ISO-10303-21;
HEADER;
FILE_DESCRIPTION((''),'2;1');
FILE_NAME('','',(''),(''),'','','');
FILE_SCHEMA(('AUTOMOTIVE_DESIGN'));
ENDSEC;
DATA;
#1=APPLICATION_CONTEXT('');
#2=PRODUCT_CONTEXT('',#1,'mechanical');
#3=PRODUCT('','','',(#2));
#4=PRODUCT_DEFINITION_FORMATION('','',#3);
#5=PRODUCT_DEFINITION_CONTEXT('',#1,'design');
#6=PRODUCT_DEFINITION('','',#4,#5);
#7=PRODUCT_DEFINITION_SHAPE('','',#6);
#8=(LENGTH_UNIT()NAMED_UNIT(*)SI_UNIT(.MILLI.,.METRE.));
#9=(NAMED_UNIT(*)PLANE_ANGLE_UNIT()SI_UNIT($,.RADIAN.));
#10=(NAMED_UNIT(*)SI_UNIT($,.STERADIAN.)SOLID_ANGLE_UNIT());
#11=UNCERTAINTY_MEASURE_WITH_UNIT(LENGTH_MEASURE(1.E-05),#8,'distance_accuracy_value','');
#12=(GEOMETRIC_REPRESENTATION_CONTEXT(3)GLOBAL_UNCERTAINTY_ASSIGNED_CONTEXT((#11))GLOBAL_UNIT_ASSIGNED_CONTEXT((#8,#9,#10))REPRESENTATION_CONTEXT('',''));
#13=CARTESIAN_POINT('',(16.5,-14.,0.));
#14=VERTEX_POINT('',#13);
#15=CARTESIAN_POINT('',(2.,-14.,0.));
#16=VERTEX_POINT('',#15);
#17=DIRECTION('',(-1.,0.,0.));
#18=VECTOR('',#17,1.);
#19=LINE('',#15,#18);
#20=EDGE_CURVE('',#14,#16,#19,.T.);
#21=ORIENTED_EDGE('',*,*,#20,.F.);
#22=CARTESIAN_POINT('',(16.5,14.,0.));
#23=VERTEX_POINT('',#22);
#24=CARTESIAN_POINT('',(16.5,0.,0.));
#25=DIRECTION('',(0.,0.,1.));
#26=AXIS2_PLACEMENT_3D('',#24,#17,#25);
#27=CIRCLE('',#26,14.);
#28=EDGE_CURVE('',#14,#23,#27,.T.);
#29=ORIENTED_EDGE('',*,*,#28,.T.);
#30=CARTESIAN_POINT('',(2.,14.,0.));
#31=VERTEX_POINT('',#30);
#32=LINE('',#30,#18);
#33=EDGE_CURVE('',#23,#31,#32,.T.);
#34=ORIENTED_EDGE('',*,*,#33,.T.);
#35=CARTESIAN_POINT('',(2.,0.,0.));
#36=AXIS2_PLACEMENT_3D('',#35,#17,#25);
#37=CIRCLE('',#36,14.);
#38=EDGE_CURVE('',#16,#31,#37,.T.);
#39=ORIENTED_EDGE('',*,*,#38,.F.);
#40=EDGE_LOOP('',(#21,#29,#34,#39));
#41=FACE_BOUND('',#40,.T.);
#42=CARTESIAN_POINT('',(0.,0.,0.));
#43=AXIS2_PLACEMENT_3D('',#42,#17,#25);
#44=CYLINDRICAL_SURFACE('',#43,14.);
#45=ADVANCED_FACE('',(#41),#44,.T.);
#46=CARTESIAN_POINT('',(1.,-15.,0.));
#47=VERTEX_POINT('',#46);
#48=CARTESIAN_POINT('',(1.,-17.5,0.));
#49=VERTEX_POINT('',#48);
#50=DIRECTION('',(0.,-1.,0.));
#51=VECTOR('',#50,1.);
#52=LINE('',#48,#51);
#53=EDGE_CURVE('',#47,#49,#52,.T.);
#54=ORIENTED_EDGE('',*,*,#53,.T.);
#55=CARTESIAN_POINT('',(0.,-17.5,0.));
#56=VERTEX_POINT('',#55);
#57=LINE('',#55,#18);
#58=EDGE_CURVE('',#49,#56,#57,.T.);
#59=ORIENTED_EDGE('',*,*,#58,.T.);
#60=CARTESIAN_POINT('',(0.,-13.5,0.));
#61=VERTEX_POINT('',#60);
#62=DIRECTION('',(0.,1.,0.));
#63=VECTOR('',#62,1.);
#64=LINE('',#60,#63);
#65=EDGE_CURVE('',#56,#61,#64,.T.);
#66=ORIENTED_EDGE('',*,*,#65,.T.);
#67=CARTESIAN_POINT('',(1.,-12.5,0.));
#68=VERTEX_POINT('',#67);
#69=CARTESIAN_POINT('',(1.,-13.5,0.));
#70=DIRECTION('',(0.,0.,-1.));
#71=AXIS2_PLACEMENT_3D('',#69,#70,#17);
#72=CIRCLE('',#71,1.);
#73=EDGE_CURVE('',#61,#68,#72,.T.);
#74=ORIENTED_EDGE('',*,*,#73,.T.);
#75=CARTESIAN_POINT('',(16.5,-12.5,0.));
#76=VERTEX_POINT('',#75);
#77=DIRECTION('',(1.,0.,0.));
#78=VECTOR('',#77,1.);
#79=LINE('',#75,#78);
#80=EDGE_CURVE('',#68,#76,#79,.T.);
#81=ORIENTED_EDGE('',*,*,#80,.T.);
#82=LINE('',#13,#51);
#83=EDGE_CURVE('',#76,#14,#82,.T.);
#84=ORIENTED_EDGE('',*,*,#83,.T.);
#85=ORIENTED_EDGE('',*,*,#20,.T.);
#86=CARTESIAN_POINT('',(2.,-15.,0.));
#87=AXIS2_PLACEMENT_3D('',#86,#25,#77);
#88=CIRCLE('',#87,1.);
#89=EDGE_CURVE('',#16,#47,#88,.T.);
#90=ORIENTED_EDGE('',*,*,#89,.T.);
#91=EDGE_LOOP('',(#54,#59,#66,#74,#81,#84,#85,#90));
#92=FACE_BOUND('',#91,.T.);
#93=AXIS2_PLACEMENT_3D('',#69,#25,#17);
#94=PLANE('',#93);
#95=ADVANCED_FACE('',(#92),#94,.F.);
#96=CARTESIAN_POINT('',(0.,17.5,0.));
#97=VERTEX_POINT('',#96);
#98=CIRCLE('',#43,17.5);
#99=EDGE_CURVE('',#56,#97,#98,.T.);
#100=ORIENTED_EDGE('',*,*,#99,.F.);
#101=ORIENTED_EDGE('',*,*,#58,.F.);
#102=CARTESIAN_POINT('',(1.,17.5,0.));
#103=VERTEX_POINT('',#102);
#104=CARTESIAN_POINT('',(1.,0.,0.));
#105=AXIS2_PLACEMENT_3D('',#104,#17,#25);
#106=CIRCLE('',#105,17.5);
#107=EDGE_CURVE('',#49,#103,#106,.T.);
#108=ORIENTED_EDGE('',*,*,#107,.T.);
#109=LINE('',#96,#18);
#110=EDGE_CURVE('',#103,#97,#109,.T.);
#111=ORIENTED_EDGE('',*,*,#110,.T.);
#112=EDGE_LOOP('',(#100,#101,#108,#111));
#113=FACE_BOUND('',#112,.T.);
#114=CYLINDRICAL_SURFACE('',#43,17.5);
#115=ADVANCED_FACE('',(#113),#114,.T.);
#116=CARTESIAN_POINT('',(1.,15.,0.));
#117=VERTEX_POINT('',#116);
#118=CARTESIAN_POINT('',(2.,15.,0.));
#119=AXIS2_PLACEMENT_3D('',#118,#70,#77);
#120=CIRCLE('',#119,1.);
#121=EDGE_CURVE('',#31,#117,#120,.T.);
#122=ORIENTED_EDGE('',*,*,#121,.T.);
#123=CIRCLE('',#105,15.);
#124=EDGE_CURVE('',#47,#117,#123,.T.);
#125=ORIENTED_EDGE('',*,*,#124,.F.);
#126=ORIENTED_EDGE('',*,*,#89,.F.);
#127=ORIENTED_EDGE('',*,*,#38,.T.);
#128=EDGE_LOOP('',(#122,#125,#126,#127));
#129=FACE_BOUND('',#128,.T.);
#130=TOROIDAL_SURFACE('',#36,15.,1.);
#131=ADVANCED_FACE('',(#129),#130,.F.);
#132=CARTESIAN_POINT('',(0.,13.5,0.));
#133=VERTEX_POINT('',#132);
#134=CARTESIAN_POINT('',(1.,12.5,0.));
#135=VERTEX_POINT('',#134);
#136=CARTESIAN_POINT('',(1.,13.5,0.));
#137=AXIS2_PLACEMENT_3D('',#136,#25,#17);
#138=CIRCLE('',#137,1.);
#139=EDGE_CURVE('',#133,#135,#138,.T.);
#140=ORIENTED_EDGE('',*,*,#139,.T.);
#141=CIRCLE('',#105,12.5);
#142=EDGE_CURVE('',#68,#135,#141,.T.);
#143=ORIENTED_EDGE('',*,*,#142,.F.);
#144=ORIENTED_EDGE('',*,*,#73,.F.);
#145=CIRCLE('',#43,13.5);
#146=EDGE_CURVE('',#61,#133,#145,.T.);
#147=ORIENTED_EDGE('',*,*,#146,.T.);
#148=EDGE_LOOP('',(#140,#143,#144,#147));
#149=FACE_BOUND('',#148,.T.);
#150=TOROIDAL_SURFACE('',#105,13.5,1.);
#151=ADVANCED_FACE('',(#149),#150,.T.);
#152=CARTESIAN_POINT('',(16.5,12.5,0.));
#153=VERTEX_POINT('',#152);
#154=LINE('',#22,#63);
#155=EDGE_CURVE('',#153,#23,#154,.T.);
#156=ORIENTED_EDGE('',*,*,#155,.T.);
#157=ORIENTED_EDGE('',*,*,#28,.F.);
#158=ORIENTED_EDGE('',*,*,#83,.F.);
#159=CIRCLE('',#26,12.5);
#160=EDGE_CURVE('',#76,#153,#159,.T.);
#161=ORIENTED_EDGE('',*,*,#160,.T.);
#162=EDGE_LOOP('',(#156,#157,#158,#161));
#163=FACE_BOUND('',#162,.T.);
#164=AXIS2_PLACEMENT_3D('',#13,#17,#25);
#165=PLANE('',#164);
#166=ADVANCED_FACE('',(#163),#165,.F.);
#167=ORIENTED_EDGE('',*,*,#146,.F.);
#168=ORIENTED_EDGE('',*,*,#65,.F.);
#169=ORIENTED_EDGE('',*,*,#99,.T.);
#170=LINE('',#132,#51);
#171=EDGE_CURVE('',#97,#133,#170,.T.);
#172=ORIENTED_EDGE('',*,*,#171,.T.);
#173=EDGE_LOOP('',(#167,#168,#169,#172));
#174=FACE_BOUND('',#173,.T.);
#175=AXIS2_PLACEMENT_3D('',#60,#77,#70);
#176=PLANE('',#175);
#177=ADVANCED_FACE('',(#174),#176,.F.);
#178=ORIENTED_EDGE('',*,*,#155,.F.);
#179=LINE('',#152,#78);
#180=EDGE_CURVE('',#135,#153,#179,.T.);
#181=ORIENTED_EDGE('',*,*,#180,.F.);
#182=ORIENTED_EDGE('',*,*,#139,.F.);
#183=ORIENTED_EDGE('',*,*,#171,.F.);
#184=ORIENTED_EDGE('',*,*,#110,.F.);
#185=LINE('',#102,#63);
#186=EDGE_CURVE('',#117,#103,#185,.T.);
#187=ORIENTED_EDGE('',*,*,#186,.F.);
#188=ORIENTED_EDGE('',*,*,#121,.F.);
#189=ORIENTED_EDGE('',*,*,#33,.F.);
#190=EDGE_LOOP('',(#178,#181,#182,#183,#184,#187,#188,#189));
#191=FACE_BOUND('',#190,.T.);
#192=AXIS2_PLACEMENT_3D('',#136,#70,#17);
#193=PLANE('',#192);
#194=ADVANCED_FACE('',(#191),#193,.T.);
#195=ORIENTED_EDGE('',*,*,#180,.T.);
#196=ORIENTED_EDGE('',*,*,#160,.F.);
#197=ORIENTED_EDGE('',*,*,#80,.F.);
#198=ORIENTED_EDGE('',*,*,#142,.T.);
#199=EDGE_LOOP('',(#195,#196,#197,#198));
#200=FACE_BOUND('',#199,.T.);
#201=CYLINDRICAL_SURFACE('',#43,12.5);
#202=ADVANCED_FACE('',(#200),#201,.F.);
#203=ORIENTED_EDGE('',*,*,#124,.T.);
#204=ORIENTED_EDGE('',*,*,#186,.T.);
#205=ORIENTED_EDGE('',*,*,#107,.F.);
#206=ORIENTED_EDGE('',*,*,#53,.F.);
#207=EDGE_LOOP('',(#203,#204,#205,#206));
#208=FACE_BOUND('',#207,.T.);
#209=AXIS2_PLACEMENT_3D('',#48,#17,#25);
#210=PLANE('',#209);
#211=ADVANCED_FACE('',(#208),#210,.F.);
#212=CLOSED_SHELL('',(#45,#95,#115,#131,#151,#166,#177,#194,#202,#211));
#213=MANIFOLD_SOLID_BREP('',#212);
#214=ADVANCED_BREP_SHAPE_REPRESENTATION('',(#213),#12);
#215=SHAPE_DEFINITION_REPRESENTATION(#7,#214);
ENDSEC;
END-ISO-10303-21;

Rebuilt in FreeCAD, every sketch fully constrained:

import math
import FreeCAD as App
import Part
import Sketcher

V = App.Vector

doc = App.newDocument("Part")
params = doc.addObject("Spreadsheet::Sheet", "Params")
for row, (alias, value) in enumerate([
    ("sketch1_radius", "1 mm"),
    ("sketch1_height", "4 mm"),
    ("sketch1_width", "15.5 mm"),
    ("sketch1_height2", "1.5 mm"),
    ("revolution_angle", "180 deg"),
], start=1):
    params.set(f"A{row}", alias)
    params.set(f"B{row}", "=" + value)
    params.setAlias(f"B{row}", alias)

body = doc.addObject("PartDesign::Body", "Body")

# Sketch on XY plane
sketch1 = body.newObject("Sketcher::SketchObject", "Sketch")
sketch1.AttachmentSupport = (doc.getObject("XY_Plane"), [""])
sketch1.MapMode = "FlatFace"
sketch1.addGeometry([
    Part.LineSegment(V(1, 12.5, 0), V(16.5, 12.5, 0)),  # 0
    Part.LineSegment(V(16.5, 12.5, 0), V(16.5, 14, 0)),  # 1
    Part.LineSegment(V(16.5, 14, 0), V(2, 14, 0)),  # 2
    Part.ArcOfCircle(Part.Circle(V(2, 15, 0), V(0, 0, 1), 1), math.radians(-180), math.radians(-90)),  # 3
    Part.LineSegment(V(1, 15, 0), V(1, 17.5, 0)),  # 4
    Part.LineSegment(V(1, 17.5, 0), V(0, 17.5, 0)),  # 5
    Part.LineSegment(V(0, 17.5, 0), V(0, 13.5, 0)),  # 6
    Part.ArcOfCircle(Part.Circle(V(1, 13.5, 0), V(0, 0, 1), 1), math.radians(-180), math.radians(-90)),  # 7
], False)
sketch1.addConstraint([
    Sketcher.Constraint("Coincident", 0, 2, 1, 1),
    Sketcher.Constraint("Coincident", 1, 2, 2, 1),
    Sketcher.Constraint("Tangent", 2, 2, 3, 2),
    Sketcher.Constraint("Tangent", 3, 1, 4, 1),
    Sketcher.Constraint("Coincident", 4, 2, 5, 1),
    Sketcher.Constraint("Coincident", 5, 2, 6, 1),
    Sketcher.Constraint("Tangent", 6, 2, 7, 1),
    Sketcher.Constraint("Tangent", 7, 2, 0, 1),
    Sketcher.Constraint("Horizontal", 0),
    Sketcher.Constraint("Vertical", 1),
    Sketcher.Constraint("Horizontal", 2),
    Sketcher.Constraint("Vertical", 4),
    Sketcher.Constraint("Horizontal", 5),
    Sketcher.Constraint("Vertical", 6),
    Sketcher.Constraint("Equal", 3, 7),
    Sketcher.Constraint("PointOnObject", 5, 2, -2),
    Sketcher.Constraint("Vertical", 7, 3, 3, 1),
    Sketcher.Constraint("Radius", 3, 1.0),
    Sketcher.Constraint("DistanceY", 6, 2, 6, 1, 4.0),
    Sketcher.Constraint("DistanceX", 0, 1, 0, 2, 15.5),
    Sketcher.Constraint("DistanceY", 1, 1, 1, 2, 1.5),
    Sketcher.Constraint("DistanceY", -1, 1, 3, 3, 15.0),
])
sketch1.setExpression("Constraints[17]", "Params.sketch1_radius")
sketch1.setExpression("Constraints[18]", "Params.sketch1_height")
sketch1.setExpression("Constraints[19]", "Params.sketch1_width")
sketch1.setExpression("Constraints[20]", "Params.sketch1_height2")
revolution = body.newObject("PartDesign::Revolution", "Revolution")
revolution.Profile = sketch1
revolution.ReferenceAxis = (sketch1, ["H_Axis"])
revolution.setExpression("Angle", "Params.revolution_angle")

doc.recompute()
